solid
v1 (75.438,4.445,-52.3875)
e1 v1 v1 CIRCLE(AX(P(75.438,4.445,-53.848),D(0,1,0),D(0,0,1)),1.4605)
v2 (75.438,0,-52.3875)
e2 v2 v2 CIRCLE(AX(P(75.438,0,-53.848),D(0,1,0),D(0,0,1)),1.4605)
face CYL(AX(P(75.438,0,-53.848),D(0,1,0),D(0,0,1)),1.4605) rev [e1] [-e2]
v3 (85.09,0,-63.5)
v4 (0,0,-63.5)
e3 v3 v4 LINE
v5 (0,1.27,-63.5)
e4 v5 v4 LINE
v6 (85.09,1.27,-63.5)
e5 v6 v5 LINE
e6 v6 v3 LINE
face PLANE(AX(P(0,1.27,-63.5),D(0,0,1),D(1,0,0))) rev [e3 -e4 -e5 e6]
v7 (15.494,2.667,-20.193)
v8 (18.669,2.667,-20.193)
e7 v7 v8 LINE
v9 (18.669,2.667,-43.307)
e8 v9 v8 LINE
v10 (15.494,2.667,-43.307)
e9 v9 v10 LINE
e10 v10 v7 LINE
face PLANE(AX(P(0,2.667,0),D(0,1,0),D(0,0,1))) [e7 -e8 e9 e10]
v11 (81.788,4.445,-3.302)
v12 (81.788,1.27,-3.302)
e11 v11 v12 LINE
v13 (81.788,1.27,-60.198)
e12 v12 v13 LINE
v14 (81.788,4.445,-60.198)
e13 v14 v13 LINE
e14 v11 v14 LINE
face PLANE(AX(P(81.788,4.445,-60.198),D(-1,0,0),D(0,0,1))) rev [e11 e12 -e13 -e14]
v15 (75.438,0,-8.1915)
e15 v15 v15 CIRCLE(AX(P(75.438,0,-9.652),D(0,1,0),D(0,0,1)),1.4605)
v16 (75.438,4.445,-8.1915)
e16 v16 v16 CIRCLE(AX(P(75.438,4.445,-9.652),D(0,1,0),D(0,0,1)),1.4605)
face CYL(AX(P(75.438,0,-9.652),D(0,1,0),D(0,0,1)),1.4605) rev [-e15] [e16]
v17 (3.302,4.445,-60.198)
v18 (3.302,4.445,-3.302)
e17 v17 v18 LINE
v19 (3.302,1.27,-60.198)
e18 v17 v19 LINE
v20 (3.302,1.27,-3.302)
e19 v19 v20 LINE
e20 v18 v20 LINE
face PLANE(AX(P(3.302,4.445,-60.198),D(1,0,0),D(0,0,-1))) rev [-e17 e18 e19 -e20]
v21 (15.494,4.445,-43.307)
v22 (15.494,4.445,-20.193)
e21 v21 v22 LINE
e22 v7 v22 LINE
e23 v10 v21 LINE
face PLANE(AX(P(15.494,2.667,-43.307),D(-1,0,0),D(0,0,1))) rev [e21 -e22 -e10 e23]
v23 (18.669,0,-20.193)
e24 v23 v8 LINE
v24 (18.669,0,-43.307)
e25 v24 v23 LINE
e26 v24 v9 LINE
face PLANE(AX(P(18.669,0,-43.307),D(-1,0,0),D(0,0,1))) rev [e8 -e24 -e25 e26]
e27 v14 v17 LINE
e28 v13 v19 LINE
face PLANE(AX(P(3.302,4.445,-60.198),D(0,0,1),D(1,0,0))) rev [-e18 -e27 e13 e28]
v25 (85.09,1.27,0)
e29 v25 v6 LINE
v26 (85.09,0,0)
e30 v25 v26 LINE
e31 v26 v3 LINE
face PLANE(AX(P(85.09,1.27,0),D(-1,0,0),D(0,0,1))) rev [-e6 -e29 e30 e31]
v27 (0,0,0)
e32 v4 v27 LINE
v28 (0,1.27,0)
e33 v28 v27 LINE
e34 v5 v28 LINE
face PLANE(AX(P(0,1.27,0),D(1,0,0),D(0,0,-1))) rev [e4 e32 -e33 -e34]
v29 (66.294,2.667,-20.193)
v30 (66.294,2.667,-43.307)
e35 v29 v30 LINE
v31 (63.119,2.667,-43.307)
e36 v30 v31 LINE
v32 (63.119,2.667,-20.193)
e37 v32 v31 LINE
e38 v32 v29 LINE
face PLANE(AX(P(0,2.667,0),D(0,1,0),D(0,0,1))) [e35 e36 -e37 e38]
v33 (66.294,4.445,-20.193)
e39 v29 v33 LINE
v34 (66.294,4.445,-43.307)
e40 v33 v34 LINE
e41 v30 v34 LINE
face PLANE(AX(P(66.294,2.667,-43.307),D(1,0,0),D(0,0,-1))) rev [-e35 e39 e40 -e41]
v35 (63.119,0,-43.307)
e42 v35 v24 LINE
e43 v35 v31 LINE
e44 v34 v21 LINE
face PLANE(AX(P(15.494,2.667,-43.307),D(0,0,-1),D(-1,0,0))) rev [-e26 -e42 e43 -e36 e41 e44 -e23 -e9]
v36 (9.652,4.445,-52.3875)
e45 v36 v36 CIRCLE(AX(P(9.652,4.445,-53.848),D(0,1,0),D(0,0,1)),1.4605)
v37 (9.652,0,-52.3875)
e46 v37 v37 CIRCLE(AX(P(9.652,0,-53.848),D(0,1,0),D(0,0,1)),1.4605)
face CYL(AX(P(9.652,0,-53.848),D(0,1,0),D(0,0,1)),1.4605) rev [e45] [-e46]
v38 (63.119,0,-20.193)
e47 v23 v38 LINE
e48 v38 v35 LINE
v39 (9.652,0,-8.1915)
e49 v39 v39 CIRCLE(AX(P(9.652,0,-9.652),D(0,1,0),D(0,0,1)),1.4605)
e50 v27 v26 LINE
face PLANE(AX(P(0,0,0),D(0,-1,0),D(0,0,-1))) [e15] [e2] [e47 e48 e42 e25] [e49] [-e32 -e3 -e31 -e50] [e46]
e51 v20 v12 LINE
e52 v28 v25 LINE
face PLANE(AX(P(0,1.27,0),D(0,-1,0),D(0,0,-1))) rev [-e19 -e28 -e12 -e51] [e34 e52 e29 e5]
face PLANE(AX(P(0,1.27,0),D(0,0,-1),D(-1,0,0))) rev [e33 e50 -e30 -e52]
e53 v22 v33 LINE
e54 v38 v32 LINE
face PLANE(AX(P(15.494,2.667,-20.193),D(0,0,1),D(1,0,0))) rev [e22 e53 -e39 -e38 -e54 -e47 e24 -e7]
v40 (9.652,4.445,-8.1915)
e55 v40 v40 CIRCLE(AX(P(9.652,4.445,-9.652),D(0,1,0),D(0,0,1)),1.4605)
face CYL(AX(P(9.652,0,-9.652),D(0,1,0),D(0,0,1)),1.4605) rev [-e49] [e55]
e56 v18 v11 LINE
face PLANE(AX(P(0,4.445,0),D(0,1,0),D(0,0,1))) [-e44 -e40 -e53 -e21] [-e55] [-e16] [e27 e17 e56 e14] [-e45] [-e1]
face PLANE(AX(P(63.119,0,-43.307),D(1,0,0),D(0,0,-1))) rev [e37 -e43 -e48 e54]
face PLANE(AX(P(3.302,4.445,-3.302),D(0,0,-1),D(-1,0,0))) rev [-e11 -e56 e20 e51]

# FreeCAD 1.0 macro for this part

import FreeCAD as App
import Part
import Sketcher
from FreeCAD import Vector
Q = App.Units.Quantity


def add_polygon(sketch, points):
    """Adds a closed chain of lines whose ends are joined by coincident constraints."""
    first, n = sketch.GeometryCount, len(points)
    for a, b in zip(points, points[1:] + points[:1]):
        sketch.addGeometry(Part.LineSegment(App.Vector(*a, 0), App.Vector(*b, 0)), False)
    for i in range(n):
        sketch.addConstraint(Sketcher.Constraint("Coincident", first + i, 2, first + (i + 1) % n, 1))

doc = App.newDocument("Part")
body = doc.addObject("PartDesign::Body", "Body")

sketch1 = body.newObject("Sketcher::SketchObject", "Sketch")
sketch1.AttachmentSupport = (doc.getObject("XZ_Plane"), [""])
sketch1.MapMode = "FlatFace"
add_polygon(sketch1, [(0, -63.5), (0, 0), (85.09, 0), (85.09, -63.5)])
sketch1.addConstraint(Sketcher.Constraint("Vertical", 0))
sketch1.addConstraint(Sketcher.Constraint("Horizontal", 1))
sketch1.addConstraint(Sketcher.Constraint("Vertical", 2))
sketch1.addConstraint(Sketcher.Constraint("Horizontal", 3))
sketch1.addConstraint(Sketcher.Constraint("Coincident", 0, 2, -1, 1))
sketch1.addConstraint(Sketcher.Constraint("DistanceY", 0, 1, 0, 2, Q("2.5 in")))
sketch1.addConstraint(Sketcher.Constraint("DistanceX", 1, 1, 1, 2, Q("3.35 in")))
pad1 = body.newObject("PartDesign::Pad", "Pad")
pad1.Profile = sketch1
pad1.Length = Q("0.05 in")
pad1.Reversed = True

sketch2 = body.newObject("Sketcher::SketchObject", "Sketch001")
sketch2.AttachmentSupport = (doc.getObject("XZ_Plane"), [""])
sketch2.MapMode = "FlatFace"
sketch2.AttachmentOffset = App.Placement(Vector(0, 0, -0.05 * 25.4), App.Rotation())
add_polygon(sketch2, [(3.302, -60.198), (3.302, -3.302), (81.788, -3.302), (81.788, -60.198)])
sketch2.addConstraint(Sketcher.Constraint("Vertical", 0))
sketch2.addConstraint(Sketcher.Constraint("Horizontal", 1))
sketch2.addConstraint(Sketcher.Constraint("Vertical", 2))
sketch2.addConstraint(Sketcher.Constraint("Horizontal", 3))
sketch2.addConstraint(Sketcher.Constraint("DistanceX", 1, 1, 1, 2, Q("3.09 in")))
sketch2.addConstraint(Sketcher.Constraint("DistanceY", 0, 1, 0, 2, Q("2.24 in")))
sketch2.addConstraint(Sketcher.Constraint("DistanceX", -1, 1, 0, 2, Q("0.13 in")))
sketch2.addConstraint(Sketcher.Constraint("DistanceY", 0, 2, -1, 1, Q("0.13 in")))
pad2 = body.newObject("PartDesign::Pad", "Pad001")
pad2.Profile = sketch2
pad2.Length = Q("0.125 in")
pad2.Reversed = True

sketch3 = body.newObject("Sketcher::SketchObject", "Sketch002")
sketch3.AttachmentSupport = (doc.getObject("XZ_Plane"), [""])
sketch3.MapMode = "FlatFace"
sketch3.AttachmentOffset = App.Placement(Vector(0, 0, -0.175 * 25.4), App.Rotation())
add_polygon(sketch3, [(15.494, -43.307), (15.494, -20.193), (66.294, -20.193), (66.294, -43.307)])
sketch3.addConstraint(Sketcher.Constraint("Vertical", 0))
sketch3.addConstraint(Sketcher.Constraint("Horizontal", 1))
sketch3.addConstraint(Sketcher.Constraint("Vertical", 2))
sketch3.addConstraint(Sketcher.Constraint("Horizontal", 3))
sketch3.addConstraint(Sketcher.Constraint("DistanceX", 1, 1, 1, 2, Q("2 in")))
sketch3.addConstraint(Sketcher.Constraint("DistanceY", 0, 1, 0, 2, Q("0.91 in")))
sketch3.addConstraint(Sketcher.Constraint("DistanceX", -1, 1, 0, 2, Q("0.61 in")))
sketch3.addConstraint(Sketcher.Constraint("DistanceY", 0, 2, -1, 1, Q("0.795 in")))
pocket1 = body.newObject("PartDesign::Pocket", "Pocket")
pocket1.Profile = sketch3
pocket1.Length = Q("0.07 in")
pocket1.Reversed = True

sketch4 = body.newObject("Sketcher::SketchObject", "Sketch003")
sketch4.AttachmentSupport = (doc.getObject("XZ_Plane"), [""])
sketch4.MapMode = "FlatFace"
sketch4.AttachmentOffset = App.Placement(Vector(0, 0, -0.105 * 25.4), App.Rotation())
add_polygon(sketch4, [(18.669, -43.307), (18.669, -20.193), (63.119, -20.193), (63.119, -43.307)])
sketch4.addConstraint(Sketcher.Constraint("Vertical", 0))
sketch4.addConstraint(Sketcher.Constraint("Horizontal", 1))
sketch4.addConstraint(Sketcher.Constraint("Vertical", 2))
sketch4.addConstraint(Sketcher.Constraint("Horizontal", 3))
sketch4.addConstraint(Sketcher.Constraint("DistanceX", 1, 1, 1, 2, Q("1.75 in")))
sketch4.addConstraint(Sketcher.Constraint("DistanceY", 0, 1, 0, 2, Q("0.91 in")))
sketch4.addConstraint(Sketcher.Constraint("DistanceX", -1, 1, 0, 2, Q("0.735 in")))
sketch4.addConstraint(Sketcher.Constraint("DistanceY", 0, 2, -1, 1, Q("0.795 in")))
pocket2 = body.newObject("PartDesign::Pocket", "Pocket001")
pocket2.Profile = sketch4
pocket2.Type = "ThroughAll"
pocket2.Reversed = True

sketch5 = body.newObject("Sketcher::SketchObject", "Sketch004")
sketch5.AttachmentSupport = (doc.getObject("XZ_Plane"), [""])
sketch5.MapMode = "FlatFace"
sketch5.AttachmentOffset = App.Placement(Vector(0, 0, -0.175 * 25.4), App.Rotation())
sketch5.addGeometry(Part.Circle(Vector(9.652, -53.848, 0), Vector(0, 0, 1), 1.4605), False)
sketch5.addGeometry(Part.Circle(Vector(9.652, -9.652, 0), Vector(0, 0, 1), 1.4605), False)
sketch5.addGeometry(Part.Circle(Vector(75.438, -53.848, 0), Vector(0, 0, 1), 1.4605), False)
sketch5.addGeometry(Part.Circle(Vector(75.438, -9.652, 0), Vector(0, 0, 1), 1.4605), False)
sketch5.addConstraint(Sketcher.Constraint("Equal", 0, 1))
sketch5.addConstraint(Sketcher.Constraint("Equal", 1, 2))
sketch5.addConstraint(Sketcher.Constraint("Equal", 2, 3))
sketch5.addConstraint(Sketcher.Constraint("Horizontal", 0, 3, 2, 3))
sketch5.addConstraint(Sketcher.Constraint("Horizontal", 1, 3, 3, 3))
sketch5.addConstraint(Sketcher.Constraint("Vertical", 0, 3, 1, 3))
sketch5.addConstraint(Sketcher.Constraint("Vertical", 2, 3, 3, 3))
sketch5.addConstraint(Sketcher.Constraint("Diameter", 0, Q("0.115 in")))
sketch5.addConstraint(Sketcher.Constraint("DistanceX", -1, 1, 0, 3, Q("0.38 in")))
sketch5.addConstraint(Sketcher.Constraint("DistanceY", 0, 3, -1, 1, Q("2.12 in")))
sketch5.addConstraint(Sketcher.Constraint("DistanceY", 1, 3, -1, 1, Q("0.38 in")))
sketch5.addConstraint(Sketcher.Constraint("DistanceX", -1, 1, 2, 3, Q("2.97 in")))
pocket3 = body.newObject("PartDesign::Pocket", "Pocket002")
pocket3.Profile = sketch5
pocket3.Type = "ThroughAll"
pocket3.Reversed = True

doc.recompute()
